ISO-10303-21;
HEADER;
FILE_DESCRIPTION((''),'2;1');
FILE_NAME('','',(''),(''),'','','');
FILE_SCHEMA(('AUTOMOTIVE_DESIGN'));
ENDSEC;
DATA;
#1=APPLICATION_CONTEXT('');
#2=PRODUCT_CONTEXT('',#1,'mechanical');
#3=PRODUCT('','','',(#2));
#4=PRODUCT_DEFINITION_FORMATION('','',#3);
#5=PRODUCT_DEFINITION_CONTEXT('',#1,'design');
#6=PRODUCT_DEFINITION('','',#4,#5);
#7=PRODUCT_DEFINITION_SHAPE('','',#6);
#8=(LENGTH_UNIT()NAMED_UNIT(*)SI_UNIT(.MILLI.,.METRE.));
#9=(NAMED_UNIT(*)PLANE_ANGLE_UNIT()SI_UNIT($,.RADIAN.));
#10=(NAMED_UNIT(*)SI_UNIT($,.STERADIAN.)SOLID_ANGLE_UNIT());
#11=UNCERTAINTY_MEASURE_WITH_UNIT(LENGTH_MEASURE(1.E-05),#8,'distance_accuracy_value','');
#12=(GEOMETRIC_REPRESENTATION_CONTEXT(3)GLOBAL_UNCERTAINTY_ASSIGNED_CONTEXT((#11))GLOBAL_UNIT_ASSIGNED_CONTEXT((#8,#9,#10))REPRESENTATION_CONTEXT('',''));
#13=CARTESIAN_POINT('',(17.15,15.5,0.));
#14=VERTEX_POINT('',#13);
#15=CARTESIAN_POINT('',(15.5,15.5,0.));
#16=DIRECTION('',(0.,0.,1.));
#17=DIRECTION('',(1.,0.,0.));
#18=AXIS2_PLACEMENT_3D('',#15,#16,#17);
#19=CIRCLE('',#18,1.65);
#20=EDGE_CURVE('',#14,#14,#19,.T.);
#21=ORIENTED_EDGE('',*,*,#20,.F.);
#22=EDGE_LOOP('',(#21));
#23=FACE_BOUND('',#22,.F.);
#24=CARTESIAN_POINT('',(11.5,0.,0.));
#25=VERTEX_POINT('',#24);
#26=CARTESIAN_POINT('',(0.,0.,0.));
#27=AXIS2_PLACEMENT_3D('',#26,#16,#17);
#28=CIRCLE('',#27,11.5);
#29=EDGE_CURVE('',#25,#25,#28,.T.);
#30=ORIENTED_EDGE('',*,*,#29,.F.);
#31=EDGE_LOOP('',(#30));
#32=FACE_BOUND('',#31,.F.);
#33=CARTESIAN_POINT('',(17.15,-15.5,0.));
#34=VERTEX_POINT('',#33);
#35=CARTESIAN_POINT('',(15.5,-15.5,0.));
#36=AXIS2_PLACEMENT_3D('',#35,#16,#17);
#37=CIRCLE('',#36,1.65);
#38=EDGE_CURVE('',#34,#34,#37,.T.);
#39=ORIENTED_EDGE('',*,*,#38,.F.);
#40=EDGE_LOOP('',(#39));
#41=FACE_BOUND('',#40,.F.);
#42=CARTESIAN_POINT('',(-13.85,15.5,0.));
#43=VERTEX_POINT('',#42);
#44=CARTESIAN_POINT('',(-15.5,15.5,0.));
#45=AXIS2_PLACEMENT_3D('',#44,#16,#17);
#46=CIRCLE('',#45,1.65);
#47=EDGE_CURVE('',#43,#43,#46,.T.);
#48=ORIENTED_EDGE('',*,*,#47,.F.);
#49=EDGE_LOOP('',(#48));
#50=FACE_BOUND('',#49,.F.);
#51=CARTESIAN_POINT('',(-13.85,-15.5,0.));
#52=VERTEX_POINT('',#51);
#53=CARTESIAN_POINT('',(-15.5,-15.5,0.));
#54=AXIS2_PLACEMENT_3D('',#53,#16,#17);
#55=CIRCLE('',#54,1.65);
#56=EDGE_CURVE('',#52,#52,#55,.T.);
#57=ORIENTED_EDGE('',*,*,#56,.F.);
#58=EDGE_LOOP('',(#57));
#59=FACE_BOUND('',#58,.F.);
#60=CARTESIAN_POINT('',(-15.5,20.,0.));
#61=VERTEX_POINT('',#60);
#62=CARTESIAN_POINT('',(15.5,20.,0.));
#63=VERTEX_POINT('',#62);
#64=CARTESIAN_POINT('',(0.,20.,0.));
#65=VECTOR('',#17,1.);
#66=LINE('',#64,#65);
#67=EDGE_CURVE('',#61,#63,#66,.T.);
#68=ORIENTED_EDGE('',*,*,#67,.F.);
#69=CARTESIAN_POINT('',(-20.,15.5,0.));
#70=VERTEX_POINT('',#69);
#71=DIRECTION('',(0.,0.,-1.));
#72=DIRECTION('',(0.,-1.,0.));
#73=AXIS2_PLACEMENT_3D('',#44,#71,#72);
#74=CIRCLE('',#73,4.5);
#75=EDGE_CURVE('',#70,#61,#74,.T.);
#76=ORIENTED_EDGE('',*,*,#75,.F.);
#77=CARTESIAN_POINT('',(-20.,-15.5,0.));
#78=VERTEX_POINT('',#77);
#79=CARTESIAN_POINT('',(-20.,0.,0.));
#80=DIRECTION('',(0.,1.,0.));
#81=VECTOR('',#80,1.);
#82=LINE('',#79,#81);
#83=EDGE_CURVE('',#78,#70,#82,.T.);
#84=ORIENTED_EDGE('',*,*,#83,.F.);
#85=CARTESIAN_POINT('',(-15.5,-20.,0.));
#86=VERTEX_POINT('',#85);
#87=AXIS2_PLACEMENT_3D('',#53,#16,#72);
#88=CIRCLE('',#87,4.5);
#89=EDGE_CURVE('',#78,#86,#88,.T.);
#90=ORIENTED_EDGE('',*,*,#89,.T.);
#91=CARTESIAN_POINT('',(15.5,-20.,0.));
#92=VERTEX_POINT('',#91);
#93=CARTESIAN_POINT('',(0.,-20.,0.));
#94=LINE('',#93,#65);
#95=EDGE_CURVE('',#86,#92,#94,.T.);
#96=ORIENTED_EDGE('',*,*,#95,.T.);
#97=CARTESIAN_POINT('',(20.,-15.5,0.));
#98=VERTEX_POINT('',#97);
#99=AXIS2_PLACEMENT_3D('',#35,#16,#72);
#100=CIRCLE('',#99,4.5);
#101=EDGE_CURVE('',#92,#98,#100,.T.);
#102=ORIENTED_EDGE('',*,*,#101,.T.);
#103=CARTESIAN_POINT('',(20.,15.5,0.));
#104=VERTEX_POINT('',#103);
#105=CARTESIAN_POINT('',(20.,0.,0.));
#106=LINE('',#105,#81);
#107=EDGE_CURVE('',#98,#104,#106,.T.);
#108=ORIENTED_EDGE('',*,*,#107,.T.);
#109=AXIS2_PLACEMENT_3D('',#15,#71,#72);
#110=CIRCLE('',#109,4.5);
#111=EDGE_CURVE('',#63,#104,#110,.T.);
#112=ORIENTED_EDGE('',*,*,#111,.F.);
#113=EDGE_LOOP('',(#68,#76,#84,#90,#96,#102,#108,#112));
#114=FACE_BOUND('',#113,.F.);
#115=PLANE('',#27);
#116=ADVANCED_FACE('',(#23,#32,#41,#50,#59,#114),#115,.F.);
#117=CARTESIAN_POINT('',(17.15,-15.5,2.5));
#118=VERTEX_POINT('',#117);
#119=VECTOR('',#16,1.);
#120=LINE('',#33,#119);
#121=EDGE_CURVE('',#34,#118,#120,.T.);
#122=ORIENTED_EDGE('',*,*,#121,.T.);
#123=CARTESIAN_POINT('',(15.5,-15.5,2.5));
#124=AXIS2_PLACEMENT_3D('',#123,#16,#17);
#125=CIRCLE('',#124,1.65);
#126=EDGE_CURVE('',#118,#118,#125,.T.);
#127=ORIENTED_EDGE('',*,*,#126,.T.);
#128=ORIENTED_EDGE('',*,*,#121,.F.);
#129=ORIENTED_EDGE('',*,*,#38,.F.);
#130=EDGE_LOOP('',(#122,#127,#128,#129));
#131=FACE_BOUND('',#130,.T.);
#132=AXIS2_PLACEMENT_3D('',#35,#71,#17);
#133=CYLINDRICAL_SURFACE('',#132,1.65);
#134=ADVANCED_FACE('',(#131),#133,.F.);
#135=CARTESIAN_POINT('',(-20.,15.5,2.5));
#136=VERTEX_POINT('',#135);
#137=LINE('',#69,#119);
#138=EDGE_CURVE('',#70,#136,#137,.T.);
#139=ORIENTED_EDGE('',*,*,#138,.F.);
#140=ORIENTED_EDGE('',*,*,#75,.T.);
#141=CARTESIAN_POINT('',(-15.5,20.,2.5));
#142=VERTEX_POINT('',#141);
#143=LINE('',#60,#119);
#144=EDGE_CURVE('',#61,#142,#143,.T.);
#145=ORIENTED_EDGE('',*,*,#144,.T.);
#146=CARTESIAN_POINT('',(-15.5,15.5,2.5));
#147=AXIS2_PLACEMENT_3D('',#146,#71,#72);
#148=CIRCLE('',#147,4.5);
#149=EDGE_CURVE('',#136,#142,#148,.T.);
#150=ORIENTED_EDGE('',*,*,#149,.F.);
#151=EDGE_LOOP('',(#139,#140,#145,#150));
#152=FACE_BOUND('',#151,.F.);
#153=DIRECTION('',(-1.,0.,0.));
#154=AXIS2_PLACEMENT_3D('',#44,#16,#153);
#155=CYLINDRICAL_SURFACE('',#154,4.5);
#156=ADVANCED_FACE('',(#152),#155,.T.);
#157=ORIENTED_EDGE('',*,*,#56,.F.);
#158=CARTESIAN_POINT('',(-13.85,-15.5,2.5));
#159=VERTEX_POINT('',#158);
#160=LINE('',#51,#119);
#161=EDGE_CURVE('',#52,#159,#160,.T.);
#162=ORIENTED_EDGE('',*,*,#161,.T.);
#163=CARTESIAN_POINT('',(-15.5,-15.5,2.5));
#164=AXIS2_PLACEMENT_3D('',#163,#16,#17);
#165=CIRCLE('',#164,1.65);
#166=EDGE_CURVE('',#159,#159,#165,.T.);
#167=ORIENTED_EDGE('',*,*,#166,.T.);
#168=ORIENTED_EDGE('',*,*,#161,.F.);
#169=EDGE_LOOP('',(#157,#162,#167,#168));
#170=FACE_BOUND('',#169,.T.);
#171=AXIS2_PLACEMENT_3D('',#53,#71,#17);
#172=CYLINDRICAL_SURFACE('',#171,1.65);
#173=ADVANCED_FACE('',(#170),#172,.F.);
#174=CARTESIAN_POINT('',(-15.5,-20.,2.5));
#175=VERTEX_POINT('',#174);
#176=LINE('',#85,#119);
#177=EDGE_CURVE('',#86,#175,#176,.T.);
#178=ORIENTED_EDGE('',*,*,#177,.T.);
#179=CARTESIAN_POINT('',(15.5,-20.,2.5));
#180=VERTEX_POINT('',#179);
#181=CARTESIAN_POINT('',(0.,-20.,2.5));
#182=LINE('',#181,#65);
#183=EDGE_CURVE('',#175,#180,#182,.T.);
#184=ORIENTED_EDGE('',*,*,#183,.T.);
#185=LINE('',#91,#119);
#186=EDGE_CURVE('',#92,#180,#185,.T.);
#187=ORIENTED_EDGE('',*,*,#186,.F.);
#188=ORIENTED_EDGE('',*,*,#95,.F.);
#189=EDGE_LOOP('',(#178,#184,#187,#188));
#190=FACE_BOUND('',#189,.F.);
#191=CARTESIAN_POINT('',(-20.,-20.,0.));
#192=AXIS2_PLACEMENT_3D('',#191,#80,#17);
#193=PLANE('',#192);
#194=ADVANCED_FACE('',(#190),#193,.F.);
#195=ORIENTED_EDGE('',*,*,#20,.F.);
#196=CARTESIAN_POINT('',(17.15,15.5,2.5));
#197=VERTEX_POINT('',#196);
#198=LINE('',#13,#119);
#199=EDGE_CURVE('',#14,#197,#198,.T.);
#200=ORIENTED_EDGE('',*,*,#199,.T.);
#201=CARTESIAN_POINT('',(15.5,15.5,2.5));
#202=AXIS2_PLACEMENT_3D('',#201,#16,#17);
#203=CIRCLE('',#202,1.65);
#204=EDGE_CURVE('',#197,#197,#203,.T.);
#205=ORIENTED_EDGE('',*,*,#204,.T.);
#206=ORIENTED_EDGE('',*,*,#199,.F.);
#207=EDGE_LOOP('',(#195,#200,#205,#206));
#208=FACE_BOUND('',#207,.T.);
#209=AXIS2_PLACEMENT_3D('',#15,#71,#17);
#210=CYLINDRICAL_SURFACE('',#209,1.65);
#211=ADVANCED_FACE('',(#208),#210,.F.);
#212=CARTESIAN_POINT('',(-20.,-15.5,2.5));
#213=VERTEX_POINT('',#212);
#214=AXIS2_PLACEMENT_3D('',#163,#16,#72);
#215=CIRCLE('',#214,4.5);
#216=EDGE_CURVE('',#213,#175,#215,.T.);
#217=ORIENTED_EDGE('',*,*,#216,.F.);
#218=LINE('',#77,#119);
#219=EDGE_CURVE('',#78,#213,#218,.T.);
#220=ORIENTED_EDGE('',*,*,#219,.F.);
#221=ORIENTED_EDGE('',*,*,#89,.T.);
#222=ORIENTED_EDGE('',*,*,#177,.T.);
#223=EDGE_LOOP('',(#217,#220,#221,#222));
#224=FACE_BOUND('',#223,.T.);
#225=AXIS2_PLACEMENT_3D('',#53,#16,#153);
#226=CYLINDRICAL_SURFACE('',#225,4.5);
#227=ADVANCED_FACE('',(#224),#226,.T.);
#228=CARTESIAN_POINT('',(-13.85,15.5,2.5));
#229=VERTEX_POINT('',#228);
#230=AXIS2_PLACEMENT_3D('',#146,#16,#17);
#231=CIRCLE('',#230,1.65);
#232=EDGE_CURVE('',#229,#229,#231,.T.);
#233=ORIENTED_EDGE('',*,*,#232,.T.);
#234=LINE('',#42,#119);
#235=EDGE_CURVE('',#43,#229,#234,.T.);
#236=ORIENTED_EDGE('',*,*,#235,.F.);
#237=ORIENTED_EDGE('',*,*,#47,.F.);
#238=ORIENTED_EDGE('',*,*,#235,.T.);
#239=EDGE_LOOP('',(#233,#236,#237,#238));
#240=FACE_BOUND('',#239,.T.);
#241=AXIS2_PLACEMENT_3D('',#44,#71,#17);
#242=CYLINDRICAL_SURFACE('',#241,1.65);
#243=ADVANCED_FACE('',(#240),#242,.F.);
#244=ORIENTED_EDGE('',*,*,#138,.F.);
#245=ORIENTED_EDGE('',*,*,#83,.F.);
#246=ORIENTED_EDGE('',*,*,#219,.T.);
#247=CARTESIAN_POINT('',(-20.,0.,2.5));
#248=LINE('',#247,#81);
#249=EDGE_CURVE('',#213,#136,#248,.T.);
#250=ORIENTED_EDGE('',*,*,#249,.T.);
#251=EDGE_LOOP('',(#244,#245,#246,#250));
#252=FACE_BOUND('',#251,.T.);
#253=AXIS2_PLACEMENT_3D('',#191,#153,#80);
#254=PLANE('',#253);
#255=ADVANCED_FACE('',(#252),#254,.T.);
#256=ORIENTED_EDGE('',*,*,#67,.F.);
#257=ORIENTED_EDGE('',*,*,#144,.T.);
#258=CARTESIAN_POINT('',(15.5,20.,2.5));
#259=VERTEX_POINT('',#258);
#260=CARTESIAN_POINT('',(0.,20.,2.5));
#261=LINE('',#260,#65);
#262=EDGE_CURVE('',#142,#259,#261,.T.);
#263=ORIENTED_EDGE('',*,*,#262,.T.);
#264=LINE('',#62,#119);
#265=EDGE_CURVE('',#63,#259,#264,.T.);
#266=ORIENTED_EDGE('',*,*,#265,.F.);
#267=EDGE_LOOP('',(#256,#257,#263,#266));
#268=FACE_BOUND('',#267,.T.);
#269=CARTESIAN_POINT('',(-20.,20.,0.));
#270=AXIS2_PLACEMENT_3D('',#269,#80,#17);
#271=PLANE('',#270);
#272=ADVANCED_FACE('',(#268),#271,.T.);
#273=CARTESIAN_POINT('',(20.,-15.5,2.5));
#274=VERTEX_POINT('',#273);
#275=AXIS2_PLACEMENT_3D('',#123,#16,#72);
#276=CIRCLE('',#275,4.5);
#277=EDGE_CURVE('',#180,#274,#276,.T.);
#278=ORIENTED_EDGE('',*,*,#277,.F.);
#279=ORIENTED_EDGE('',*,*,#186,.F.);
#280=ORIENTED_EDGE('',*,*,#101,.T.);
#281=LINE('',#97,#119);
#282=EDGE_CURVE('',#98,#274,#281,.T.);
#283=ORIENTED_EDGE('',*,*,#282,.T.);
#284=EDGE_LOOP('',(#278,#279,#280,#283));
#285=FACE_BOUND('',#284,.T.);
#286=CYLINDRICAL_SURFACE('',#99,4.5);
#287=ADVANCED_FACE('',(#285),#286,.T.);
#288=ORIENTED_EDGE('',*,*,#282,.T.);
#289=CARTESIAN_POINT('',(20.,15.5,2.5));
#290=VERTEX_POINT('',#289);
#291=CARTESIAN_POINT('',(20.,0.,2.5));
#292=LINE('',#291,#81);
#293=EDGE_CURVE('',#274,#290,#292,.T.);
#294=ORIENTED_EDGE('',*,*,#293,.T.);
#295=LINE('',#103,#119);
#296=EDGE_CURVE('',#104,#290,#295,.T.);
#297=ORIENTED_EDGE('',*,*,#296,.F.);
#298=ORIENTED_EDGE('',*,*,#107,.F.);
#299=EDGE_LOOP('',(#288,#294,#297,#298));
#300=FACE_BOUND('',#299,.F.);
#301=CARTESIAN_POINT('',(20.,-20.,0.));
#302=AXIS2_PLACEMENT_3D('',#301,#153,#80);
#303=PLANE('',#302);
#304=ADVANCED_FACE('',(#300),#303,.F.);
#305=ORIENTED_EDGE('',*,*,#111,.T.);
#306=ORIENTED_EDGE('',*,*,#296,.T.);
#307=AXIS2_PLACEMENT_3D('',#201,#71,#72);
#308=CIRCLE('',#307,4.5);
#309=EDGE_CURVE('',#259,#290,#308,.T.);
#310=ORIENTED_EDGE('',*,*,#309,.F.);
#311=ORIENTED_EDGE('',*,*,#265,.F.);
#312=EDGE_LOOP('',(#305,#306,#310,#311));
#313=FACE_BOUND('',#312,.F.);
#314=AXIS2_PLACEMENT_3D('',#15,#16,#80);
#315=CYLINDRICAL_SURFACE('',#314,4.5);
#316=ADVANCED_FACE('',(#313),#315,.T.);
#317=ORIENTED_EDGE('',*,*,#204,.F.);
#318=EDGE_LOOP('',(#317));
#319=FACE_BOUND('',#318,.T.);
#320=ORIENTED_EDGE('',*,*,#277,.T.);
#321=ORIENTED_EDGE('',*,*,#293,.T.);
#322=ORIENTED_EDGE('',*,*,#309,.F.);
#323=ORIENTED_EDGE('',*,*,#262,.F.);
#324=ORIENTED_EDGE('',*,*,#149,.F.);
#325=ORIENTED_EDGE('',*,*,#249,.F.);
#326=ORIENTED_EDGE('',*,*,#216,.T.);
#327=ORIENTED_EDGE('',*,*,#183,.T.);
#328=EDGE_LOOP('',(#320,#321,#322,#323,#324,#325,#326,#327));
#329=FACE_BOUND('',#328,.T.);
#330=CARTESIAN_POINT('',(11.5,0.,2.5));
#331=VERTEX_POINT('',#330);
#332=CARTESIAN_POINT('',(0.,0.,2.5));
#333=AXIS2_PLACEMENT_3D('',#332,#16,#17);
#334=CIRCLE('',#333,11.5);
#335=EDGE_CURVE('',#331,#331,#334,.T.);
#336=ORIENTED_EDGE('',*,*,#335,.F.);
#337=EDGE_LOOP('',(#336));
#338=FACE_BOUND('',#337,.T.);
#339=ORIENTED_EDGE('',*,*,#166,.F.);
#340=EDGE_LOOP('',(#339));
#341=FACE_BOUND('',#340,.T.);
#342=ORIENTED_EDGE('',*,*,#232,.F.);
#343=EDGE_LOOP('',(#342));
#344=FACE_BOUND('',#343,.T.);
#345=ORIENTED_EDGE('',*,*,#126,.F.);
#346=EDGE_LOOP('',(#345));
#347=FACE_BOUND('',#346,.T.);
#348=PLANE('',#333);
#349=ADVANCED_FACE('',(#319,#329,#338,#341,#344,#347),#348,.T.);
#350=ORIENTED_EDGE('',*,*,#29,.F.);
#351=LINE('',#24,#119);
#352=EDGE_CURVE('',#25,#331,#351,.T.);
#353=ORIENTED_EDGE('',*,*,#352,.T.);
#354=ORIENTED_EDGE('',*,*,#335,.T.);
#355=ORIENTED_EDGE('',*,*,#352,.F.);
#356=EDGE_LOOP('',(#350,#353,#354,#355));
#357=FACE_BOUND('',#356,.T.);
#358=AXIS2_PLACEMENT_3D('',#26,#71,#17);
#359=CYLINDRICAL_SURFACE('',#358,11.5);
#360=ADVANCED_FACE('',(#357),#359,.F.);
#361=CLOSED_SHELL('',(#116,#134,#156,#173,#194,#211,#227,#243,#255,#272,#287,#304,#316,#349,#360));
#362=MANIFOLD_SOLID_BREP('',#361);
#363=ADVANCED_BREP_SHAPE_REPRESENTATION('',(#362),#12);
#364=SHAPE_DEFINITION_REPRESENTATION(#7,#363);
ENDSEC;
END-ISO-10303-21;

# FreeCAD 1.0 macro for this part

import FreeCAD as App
import Part
import Sketcher
Q = App.Units.Quantity


def edges_at(feature, points):
    """Names of the edges that pass closest to the given points."""
    edges = feature.Shape.Edges
    near = lambda p: min(range(len(edges)), key=lambda i: edges[i].distToShape(Part.Vertex(*p))[0])
    return sorted({f"Edge{near(p) + 1}" for p in points})

doc = App.newDocument("Part")
body = doc.addObject("PartDesign::Body", "Body")

# Sketch on XY plane
sketch1 = doc.addObject("Sketcher::SketchObject", "Sketch")
body.addObject(sketch1)
sketch1.AttachmentSupport = (doc.XY_Plane, [""])
sketch1.MapMode = "FlatFace"
sketch1.addGeometry(Part.LineSegment(App.Vector(-20, 20, 0), App.Vector(-20, -20, 0)), False)
sketch1.addGeometry(Part.LineSegment(App.Vector(-20, -20, 0), App.Vector(20, -20, 0)), False)
sketch1.addGeometry(Part.LineSegment(App.Vector(20, -20, 0), App.Vector(20, 20, 0)), False)
sketch1.addGeometry(Part.LineSegment(App.Vector(20, 20, 0), App.Vector(-20, 20, 0)), False)
sketch1.addGeometry(Part.Circle(App.Vector(-15.5, -15.5, 0), App.Vector(0, 0, 1), 1.6), False)
sketch1.addGeometry(Part.Circle(App.Vector(15.5, -15.5, 0), App.Vector(0, 0, 1), 1.6), False)
sketch1.addGeometry(Part.Circle(App.Vector(-15.5, 15.5, 0), App.Vector(0, 0, 1), 1.6), False)
sketch1.addGeometry(Part.Circle(App.Vector(0, 0, 0), App.Vector(0, 0, 1), 11.5), False)
sketch1.addGeometry(Part.Circle(App.Vector(15.5, 15.5, 0), App.Vector(0, 0, 1), 1.6), False)
sketch1.addConstraint(Sketcher.Constraint("Coincident", 0, 2, 1, 1))
sketch1.addConstraint(Sketcher.Constraint("Coincident", 1, 2, 2, 1))
sketch1.addConstraint(Sketcher.Constraint("Coincident", 2, 2, 3, 1))
sketch1.addConstraint(Sketcher.Constraint("Coincident", 3, 2, 0, 1))
sketch1.addConstraint(Sketcher.Constraint("Vertical", 0))
sketch1.addConstraint(Sketcher.Constraint("Horizontal", 1))
sketch1.addConstraint(Sketcher.Constraint("Vertical", 2))
sketch1.addConstraint(Sketcher.Constraint("Horizontal", 3))
sketch1.addConstraint(Sketcher.Constraint("Coincident", 7, 3, -1, 1))
sketch1.addConstraint(Sketcher.Constraint("Equal", 4, 5))
sketch1.addConstraint(Sketcher.Constraint("Equal", 5, 6))
sketch1.addConstraint(Sketcher.Constraint("Equal", 6, 8))
sketch1.addConstraint(Sketcher.Constraint("Symmetric", 5, 3, 6, 3, -1, 1))
sketch1.addConstraint(Sketcher.Constraint("Symmetric", 4, 3, 8, 3, -1, 1))
sketch1.addConstraint(Sketcher.Constraint("Symmetric", 0, 2, 2, 2, -1, 1))
sketch1.addConstraint(Sketcher.Constraint("Symmetric", 4, 3, 5, 3, -2))
sketch1.addConstraint(Sketcher.Constraint("Equal", 3, 0))
sketch1.addConstraint(Sketcher.Constraint("Diameter", 7, Q("23 mm")))
sketch1.addConstraint(Sketcher.Constraint("Diameter", 4, Q("3.3 mm")))
sketch1.addConstraint(Sketcher.Constraint("DistanceX", 1, 1, 1, 2, Q("40 mm")))
sketch1.addConstraint(Sketcher.Constraint("DistanceX", 4, 3, 5, 3, Q("31 mm")))
sketch1.addConstraint(Sketcher.Constraint("DistanceY", 4, 3, 6, 3, Q("31 mm")))
pad1 = doc.addObject("PartDesign::Pad", "Pad")
body.addObject(pad1)
pad1.Profile = sketch1
pad1.Length = 2.5
doc.recompute()

fillet = doc.addObject("PartDesign::Fillet", "Fillet")
body.addObject(fillet)
fillet.Base = (pad1, edges_at(pad1, [
    (-20, -20, 1.25),
    (-20, 20, 1.25),
    (20, 20, 1.25),
    (20, -20, 1.25),
]))
fillet.Radius = 4.5

doc.recompute()
